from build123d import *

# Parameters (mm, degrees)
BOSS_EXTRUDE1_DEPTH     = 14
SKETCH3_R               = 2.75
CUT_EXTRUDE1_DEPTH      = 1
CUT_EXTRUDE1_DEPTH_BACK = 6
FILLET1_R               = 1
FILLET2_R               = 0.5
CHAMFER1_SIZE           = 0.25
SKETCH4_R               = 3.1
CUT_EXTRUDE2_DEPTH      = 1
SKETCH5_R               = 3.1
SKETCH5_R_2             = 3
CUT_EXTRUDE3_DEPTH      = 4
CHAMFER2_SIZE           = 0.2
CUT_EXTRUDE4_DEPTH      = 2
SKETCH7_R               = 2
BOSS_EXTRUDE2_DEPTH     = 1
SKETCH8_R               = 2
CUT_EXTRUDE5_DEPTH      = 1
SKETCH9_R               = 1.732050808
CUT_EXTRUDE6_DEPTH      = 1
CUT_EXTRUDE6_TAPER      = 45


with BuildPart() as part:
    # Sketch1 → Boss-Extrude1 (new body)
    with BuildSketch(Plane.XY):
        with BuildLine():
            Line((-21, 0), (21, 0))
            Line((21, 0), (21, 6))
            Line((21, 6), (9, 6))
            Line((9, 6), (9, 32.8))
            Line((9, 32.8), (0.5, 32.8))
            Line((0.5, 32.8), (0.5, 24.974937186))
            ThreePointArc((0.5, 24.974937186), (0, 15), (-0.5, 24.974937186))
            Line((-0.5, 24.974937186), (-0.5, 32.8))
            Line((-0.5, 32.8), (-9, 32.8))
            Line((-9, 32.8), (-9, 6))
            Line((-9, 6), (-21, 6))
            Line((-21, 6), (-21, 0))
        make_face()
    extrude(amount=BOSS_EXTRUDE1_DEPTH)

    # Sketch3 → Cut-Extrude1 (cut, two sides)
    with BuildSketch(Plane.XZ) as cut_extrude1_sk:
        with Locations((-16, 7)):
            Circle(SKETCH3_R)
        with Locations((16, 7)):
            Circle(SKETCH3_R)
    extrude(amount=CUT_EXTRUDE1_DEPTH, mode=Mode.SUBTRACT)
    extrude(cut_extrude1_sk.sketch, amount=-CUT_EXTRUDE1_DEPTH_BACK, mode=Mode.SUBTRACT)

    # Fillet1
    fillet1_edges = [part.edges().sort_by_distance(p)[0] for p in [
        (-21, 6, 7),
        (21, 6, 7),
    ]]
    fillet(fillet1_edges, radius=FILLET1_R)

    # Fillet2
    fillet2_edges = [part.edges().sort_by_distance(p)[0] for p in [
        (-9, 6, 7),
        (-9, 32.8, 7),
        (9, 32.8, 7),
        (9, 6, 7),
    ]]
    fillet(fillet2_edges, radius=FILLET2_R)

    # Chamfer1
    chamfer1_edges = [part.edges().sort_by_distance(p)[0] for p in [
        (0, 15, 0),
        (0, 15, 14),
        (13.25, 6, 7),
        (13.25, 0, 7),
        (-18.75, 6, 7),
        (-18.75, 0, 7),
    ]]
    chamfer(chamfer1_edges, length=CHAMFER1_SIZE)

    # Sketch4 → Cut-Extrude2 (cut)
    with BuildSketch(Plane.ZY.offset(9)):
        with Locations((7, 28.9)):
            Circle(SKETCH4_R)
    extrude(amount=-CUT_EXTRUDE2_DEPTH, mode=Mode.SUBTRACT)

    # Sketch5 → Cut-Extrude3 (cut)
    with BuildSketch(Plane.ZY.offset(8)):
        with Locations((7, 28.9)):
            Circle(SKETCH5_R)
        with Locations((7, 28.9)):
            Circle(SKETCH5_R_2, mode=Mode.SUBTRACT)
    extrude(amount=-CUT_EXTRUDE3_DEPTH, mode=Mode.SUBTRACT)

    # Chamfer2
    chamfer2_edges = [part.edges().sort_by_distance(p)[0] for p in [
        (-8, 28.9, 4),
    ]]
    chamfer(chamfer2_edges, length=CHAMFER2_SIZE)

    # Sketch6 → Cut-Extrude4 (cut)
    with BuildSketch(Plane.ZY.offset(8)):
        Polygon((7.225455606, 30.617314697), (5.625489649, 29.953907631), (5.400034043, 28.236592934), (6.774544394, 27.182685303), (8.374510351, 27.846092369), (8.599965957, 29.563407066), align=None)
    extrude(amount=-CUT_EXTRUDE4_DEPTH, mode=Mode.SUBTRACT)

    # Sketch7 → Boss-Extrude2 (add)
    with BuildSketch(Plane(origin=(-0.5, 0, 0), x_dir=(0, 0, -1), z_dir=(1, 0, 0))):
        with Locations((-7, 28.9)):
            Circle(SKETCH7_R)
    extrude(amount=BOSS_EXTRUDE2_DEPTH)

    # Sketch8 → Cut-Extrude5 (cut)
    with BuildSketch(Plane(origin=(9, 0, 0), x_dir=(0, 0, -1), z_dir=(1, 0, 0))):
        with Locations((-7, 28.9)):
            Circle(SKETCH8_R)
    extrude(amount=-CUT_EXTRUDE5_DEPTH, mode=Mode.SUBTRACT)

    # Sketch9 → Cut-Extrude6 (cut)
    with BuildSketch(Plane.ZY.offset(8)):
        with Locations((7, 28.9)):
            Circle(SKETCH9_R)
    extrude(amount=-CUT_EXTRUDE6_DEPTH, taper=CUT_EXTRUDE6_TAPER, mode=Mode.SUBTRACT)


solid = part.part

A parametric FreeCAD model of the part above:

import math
import FreeCAD as App
import Part
import Sketcher

V = App.Vector
Q = App.Units.Quantity


def edges_at(feature, points):
    """Names of the edges that pass closest to the given points."""
    edges = feature.Shape.Edges
    near = lambda p: min(range(len(edges)), key=lambda i: edges[i].distToShape(Part.Vertex(*p))[0])
    return sorted({f"Edge{near(p) + 1}" for p in points})


def add_polygon(sketch, points):
    """Adds a closed chain of lines whose ends are joined by coincident constraints."""
    first, n = sketch.GeometryCount, len(points)
    for a, b in zip(points, points[1:] + points[:1]):
        sketch.addGeometry(Part.LineSegment(App.Vector(*a, 0), App.Vector(*b, 0)), False)
    for i in range(n):
        sketch.addConstraint(Sketcher.Constraint("Coincident", first + i, 2, first + (i + 1) % n, 1))

doc = App.newDocument("Part")
body = doc.addObject("PartDesign::Body", "Body")

sketch1 = doc.addObject("Sketcher::SketchObject", "Sketch")
body.addObject(sketch1)
sketch1.AttachmentSupport = (doc.XY_Plane, [""])
sketch1.MapMode = "FlatFace"
sketch1.addGeometry([
    Part.LineSegment(V(-21, 0, 0), V(21, 0, 0)),
    Part.LineSegment(V(21, 0, 0), V(21, 6, 0)),
    Part.LineSegment(V(21, 6, 0), V(9, 6, 0)),
    Part.LineSegment(V(9, 6, 0), V(9, 32.8, 0)),
    Part.LineSegment(V(9, 32.8, 0), V(0.5, 32.8, 0)),
    Part.LineSegment(V(0.5, 32.8, 0), V(0.5, 25, 0)),
    Part.ArcOfCircle(Part.Circle(V(0, 20, 0), V(0, 0, 1), 5), math.radians(96), math.radians(444)),
    Part.LineSegment(V(-0.5, 25, 0), V(-0.5, 32.8, 0)),
    Part.LineSegment(V(-0.5, 32.8, 0), V(-9, 32.8, 0)),
    Part.LineSegment(V(-9, 32.8, 0), V(-9, 6, 0)),
    Part.LineSegment(V(-9, 6, 0), V(-21, 6, 0)),
    Part.LineSegment(V(-21, 6, 0), V(-21, 0, 0)),
], False)
sketch1.addConstraint([
    Sketcher.Constraint("Coincident", 0, 2, 1, 1),
    Sketcher.Constraint("Coincident", 1, 2, 2, 1),
    Sketcher.Constraint("Coincident", 2, 2, 3, 1),
    Sketcher.Constraint("Coincident", 3, 2, 4, 1),
    Sketcher.Constraint("Coincident", 4, 2, 5, 1),
    Sketcher.Constraint("Coincident", 5, 2, 6, 2),
    Sketcher.Constraint("Coincident", 6, 1, 7, 1),
    Sketcher.Constraint("Coincident", 7, 2, 8, 1),
    Sketcher.Constraint("Coincident", 8, 2, 9, 1),
    Sketcher.Constraint("Coincident", 9, 2, 10, 1),
    Sketcher.Constraint("Coincident", 10, 2, 11, 1),
    Sketcher.Constraint("Coincident", 11, 2, 0, 1),
    Sketcher.Constraint("Horizontal", 0),
    Sketcher.Constraint("Vertical", 1),
    Sketcher.Constraint("Horizontal", 2),
    Sketcher.Constraint("Vertical", 3),
    Sketcher.Constraint("Horizontal", 4),
    Sketcher.Constraint("Vertical", 5),
    Sketcher.Constraint("Vertical", 7),
    Sketcher.Constraint("Horizontal", 8),
    Sketcher.Constraint("Vertical", 9),
    Sketcher.Constraint("Horizontal", 10),
    Sketcher.Constraint("Vertical", 11),
    Sketcher.Constraint("Symmetric", 0, 2, 11, 2, -1, 1),
    Sketcher.Constraint("Symmetric", 5, 2, 6, 1, -2),
    Sketcher.Constraint("Symmetric", 3, 2, 8, 2, -2),
    Sketcher.Constraint("Horizontal", 2, 2, 9, 2),
    Sketcher.Constraint("Radius", 6, Q("5 mm")),
    Sketcher.Constraint("DistanceX", 0, 1, 0, 2, Q("42 mm")),
    Sketcher.Constraint("DistanceX", 2, 2, 2, 1, Q("12 mm")),
    Sketcher.Constraint("DistanceY", 1, 1, 1, 2, Q("6 mm")),
    Sketcher.Constraint("DistanceX", 4, 2, 4, 1, Q("8.5 mm")),
    Sketcher.Constraint("DistanceY", 3, 1, 3, 2, Q("26.8 mm")),
    Sketcher.Constraint("DistanceY", -1, 1, 6, 3, Q("20 mm")),
])
pad1 = doc.addObject("PartDesign::Pad", "Pad")
body.addObject(pad1)
pad1.Profile = sketch1
pad1.Length = 14

sketch2 = doc.addObject("Sketcher::SketchObject", "Sketch001")
body.addObject(sketch2)
sketch2.AttachmentSupport = (doc.XZ_Plane, [""])
sketch2.MapMode = "FlatFace"
sketch2.addGeometry([
    Part.Circle(V(-16, 7, 0), V(0, 0, 1), 2.8),
    Part.Circle(V(16, 7, 0), V(0, 0, 1), 2.8),
], False)
sketch2.addConstraint([
    Sketcher.Constraint("Equal", 0, 1),
    Sketcher.Constraint("Symmetric", 0, 3, 1, 3, -2),
    Sketcher.Constraint("Diameter", 0, Q("5.5 mm")),
    Sketcher.Constraint("DistanceX", 0, 3, -1, 1, Q("16 mm")),
    Sketcher.Constraint("DistanceY", -1, 1, 0, 3, Q("7 mm")),
])
pocket1 = doc.addObject("PartDesign::Pocket", "Pocket")
body.addObject(pocket1)
pocket1.Profile = sketch2
pocket1.Type = "ThroughAll"
pocket1.Midplane = True
doc.recompute()

fillet = doc.addObject("PartDesign::Fillet", "Fillet")
body.addObject(fillet)
fillet.Base = (pocket1, edges_at(pocket1, [(-21, 6, 7), (21, 6, 7)]))
fillet.Radius = 1
doc.recompute()

fillet2 = doc.addObject("PartDesign::Fillet", "Fillet001")
body.addObject(fillet2)
fillet2.Base = (fillet, edges_at(fillet, [
    (-9, 6, 7),
    (-9, 32.8, 7),
    (9, 32.8, 7),
    (9, 6, 7),
]))
fillet2.Radius = 0.5
doc.recompute()

chamfer = doc.addObject("PartDesign::Chamfer", "Chamfer")
body.addObject(chamfer)
chamfer.Base = (fillet2, edges_at(fillet2, [
    (0, 15, 0),
    (0, 15, 14),
    (13.25, 6, 7),
    (13.25, 0, 7),
    (-18.75, 6, 7),
    (-18.75, 0, 7),
]))
chamfer.Size = 0.25

sketch3 = doc.addObject("Sketcher::SketchObject", "Sketch002")
body.addObject(sketch3)
sketch3.AttachmentSupport = (doc.YZ_Plane, [""])
sketch3.MapMode = "FlatFace"
sketch3.AttachmentOffset = App.Placement(V(0, 0, -9), App.Rotation())
sketch3.addGeometry(Part.Circle(V(28.9, 7, 0), V(0, 0, 1), 3.1), False)
sketch3.addConstraint([
    Sketcher.Constraint("Diameter", 0, Q("6.2 mm")),
    Sketcher.Constraint("DistanceY", -1, 1, 0, 3, Q("7 mm")),
    Sketcher.Constraint("DistanceX", -1, 1, 0, 3, Q("28.9 mm")),
])
pocket2 = doc.addObject("PartDesign::Pocket", "Pocket001")
body.addObject(pocket2)
pocket2.Profile = sketch3
pocket2.Length = 1
pocket2.Reversed = True

sketch4 = doc.addObject("Sketcher::SketchObject", "Sketch003")
body.addObject(sketch4)
sketch4.AttachmentSupport = (doc.YZ_Plane, [""])
sketch4.MapMode = "FlatFace"
sketch4.AttachmentOffset = App.Placement(V(0, 0, -8), App.Rotation())
sketch4.addGeometry([
    Part.Circle(V(28.9, 7, 0), V(0, 0, 1), 3.1),
    Part.Circle(V(28.9, 7, 0), V(0, 0, 1), 3),
], False)
sketch4.addConstraint([
    Sketcher.Constraint("Coincident", 1, 3, 0, 3),
    Sketcher.Constraint("Diameter", 1, Q("6 mm")),
    Sketcher.Constraint("Diameter", 0, Q("6.2 mm")),
    Sketcher.Constraint("DistanceY", -1, 1, 0, 3, Q("7 mm")),
    Sketcher.Constraint("DistanceX", -1, 1, 0, 3, Q("28.9 mm")),
])
pocket3 = doc.addObject("PartDesign::Pocket", "Pocket002")
body.addObject(pocket3)
pocket3.Profile = sketch4
pocket3.Length = 4
pocket3.Reversed = True
doc.recompute()

chamfer2 = doc.addObject("PartDesign::Chamfer", "Chamfer001")
body.addObject(chamfer2)
chamfer2.Base = (pocket3, edges_at(pocket3, [(-8, 28.9, 4)]))
chamfer2.Size = 0.2

sketch5 = doc.addObject("Sketcher::SketchObject", "Sketch004")
body.addObject(sketch5)
sketch5.AttachmentSupport = (doc.YZ_Plane, [""])
sketch5.MapMode = "FlatFace"
sketch5.AttachmentOffset = App.Placement(V(0, 0, -8), App.Rotation())
add_polygon(sketch5, [(30.6, 7.2), (30, 5.6), (28.2, 5.4), (27.2, 6.8), (27.8, 8.4), (29.6, 8.6)])
sketch5.addConstraint([
    Sketcher.Constraint("Parallel", 0, 3),
    Sketcher.Constraint("Parallel", 1, 4),
    Sketcher.Constraint("Parallel", 2, 5),
    Sketcher.Constraint("Equal", 0, 1),
    Sketcher.Constraint("Equal", 1, 2),
    Sketcher.Constraint("Equal", 2, 3),
    Sketcher.Constraint("DistanceX", 3, 2, 1, 2, Q("0.390501 mm")),
    Sketcher.Constraint("Distance", 0, Q("1.732051 mm")),
    Sketcher.Constraint("DistanceY", -1, 1, 0, 2, Q("5.62549 mm")),
    Sketcher.Constraint("DistanceY", -1, 1, 3, 2, Q("8.37451 mm")),
    Sketcher.Constraint("DistanceY", 1, 2, 2, 2, Q("1.37451 mm")),
    Sketcher.Constraint("DistanceX", -1, 1, 0, 2, Q("29.953908 mm")),
])
pocket4 = doc.addObject("PartDesign::Pocket", "Pocket003")
body.addObject(pocket4)
pocket4.Profile = sketch5
pocket4.Length = 2
pocket4.Reversed = True

sketch6 = doc.addObject("Sketcher::SketchObject", "Sketch005")
body.addObject(sketch6)
sketch6.AttachmentSupport = (doc.YZ_Plane, [""])
sketch6.MapMode = "FlatFace"
sketch6.AttachmentOffset = App.Placement(V(0, 0, -0.5), App.Rotation())
sketch6.addGeometry(Part.Circle(V(28.9, 7, 0), V(0, 0, 1), 2), False)
sketch6.addConstraint([
    Sketcher.Constraint("Diameter", 0, Q("4 mm")),
    Sketcher.Constraint("DistanceY", -1, 1, 0, 3, Q("7 mm")),
    Sketcher.Constraint("DistanceX", -1, 1, 0, 3, Q("28.9 mm")),
])
pad2 = doc.addObject("PartDesign::Pad", "Pad001")
body.addObject(pad2)
pad2.Profile = sketch6
pad2.Length = 1

sketch7 = doc.addObject("Sketcher::SketchObject", "Sketch006")
body.addObject(sketch7)
sketch7.AttachmentSupport = (doc.YZ_Plane, [""])
sketch7.MapMode = "FlatFace"
sketch7.AttachmentOffset = App.Placement(V(0, 0, 9), App.Rotation())
sketch7.addGeometry(Part.Circle(V(28.9, 7, 0), V(0, 0, 1), 2), False)
sketch7.addConstraint([
    Sketcher.Constraint("Diameter", 0, Q("4 mm")),
    Sketcher.Constraint("DistanceY", -1, 1, 0, 3, Q("7 mm")),
    Sketcher.Constraint("DistanceX", -1, 1, 0, 3, Q("28.9 mm")),
])
pocket5 = doc.addObject("PartDesign::Pocket", "Pocket004")
body.addObject(pocket5)
pocket5.Profile = sketch7
pocket5.Length = 1

sketch8 = doc.addObject("Sketcher::SketchObject", "Sketch007")
body.addObject(sketch8)
sketch8.AttachmentSupport = (doc.YZ_Plane, [""])
sketch8.MapMode = "FlatFace"
sketch8.AttachmentOffset = App.Placement(V(0, 0, -8), App.Rotation())
sketch8.addGeometry(Part.Circle(V(28.9, 7, 0), V(0, 0, 1), 1.7), False)
sketch8.addConstraint([
    Sketcher.Constraint("DistanceY", -1, 1, 0, 3, Q("7 mm")),
    Sketcher.Constraint("Diameter", 0, Q("3.464102 mm")),
    Sketcher.Constraint("DistanceX", -1, 1, 0, 3, Q("28.9 mm")),
])
pocket6 = doc.addObject("PartDesign::Pocket", "Pocket005")
body.addObject(pocket6)
pocket6.Profile = sketch8
pocket6.Length = 1
pocket6.Reversed = True
pocket6.TaperAngle = -45

doc.recompute()
